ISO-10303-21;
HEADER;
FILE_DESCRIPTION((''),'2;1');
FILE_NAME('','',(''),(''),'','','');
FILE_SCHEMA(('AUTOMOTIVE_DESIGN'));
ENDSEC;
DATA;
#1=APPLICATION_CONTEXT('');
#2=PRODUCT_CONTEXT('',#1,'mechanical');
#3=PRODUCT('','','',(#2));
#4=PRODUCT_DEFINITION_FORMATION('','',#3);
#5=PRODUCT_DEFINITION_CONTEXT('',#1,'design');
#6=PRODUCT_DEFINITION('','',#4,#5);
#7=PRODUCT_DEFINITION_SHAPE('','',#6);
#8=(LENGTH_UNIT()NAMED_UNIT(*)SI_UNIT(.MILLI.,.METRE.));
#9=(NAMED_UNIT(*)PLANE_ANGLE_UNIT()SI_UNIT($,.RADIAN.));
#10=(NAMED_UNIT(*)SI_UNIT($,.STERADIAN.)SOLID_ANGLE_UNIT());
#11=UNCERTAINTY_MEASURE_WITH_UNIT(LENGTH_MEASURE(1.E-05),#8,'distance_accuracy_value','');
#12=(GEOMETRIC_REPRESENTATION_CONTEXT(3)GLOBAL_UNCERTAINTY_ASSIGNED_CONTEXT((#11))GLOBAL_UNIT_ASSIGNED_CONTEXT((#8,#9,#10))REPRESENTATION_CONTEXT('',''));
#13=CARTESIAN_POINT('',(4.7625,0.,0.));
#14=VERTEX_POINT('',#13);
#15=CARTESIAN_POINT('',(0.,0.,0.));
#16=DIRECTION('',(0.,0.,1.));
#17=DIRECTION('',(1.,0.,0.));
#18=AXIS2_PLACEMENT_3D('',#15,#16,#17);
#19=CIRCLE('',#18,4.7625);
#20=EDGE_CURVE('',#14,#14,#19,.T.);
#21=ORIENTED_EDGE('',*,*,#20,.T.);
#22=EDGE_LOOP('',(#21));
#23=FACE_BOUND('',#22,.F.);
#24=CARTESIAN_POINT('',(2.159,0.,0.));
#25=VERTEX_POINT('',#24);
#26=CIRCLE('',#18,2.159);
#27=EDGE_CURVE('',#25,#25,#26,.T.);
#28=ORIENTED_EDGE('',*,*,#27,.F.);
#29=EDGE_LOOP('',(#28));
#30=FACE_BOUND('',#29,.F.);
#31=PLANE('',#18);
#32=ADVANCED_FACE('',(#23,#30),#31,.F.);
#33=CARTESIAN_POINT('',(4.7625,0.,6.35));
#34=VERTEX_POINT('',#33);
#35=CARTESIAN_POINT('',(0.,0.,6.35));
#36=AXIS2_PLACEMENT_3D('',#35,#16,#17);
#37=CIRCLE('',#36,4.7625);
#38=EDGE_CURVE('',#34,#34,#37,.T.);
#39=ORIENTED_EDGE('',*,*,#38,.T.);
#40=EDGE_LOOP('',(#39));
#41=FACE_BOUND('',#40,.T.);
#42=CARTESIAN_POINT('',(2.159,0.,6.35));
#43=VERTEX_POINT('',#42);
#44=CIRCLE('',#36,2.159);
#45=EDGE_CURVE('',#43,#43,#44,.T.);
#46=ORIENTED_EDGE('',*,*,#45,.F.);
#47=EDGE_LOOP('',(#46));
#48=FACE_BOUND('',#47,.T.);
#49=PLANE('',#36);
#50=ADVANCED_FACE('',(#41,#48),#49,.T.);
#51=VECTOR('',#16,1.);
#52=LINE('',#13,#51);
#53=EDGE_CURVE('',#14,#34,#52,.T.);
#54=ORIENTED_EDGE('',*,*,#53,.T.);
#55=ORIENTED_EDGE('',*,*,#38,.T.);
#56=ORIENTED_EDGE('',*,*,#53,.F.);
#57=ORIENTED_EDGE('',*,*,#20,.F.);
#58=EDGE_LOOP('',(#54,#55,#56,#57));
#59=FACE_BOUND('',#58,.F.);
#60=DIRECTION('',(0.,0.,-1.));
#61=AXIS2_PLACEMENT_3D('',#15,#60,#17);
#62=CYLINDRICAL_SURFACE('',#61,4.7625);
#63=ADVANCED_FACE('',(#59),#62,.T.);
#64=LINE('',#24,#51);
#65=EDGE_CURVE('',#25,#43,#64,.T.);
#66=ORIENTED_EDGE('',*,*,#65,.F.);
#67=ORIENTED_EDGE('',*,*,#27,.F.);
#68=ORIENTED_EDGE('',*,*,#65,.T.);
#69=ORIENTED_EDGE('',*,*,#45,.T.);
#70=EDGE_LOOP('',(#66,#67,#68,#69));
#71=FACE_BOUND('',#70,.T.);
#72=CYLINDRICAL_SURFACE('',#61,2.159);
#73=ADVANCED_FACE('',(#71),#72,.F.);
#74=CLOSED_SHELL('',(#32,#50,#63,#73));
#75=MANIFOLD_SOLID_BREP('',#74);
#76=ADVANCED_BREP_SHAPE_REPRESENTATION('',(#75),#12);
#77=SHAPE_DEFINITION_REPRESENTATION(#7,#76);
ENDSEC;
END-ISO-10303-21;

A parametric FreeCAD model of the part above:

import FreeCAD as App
import Part
import Sketcher

V = App.Vector
Q = App.Units.Quantity

doc = App.newDocument("Part")
body = doc.addObject("PartDesign::Body", "Body")

sketch1 = body.newObject("Sketcher::SketchObject", "Sketch")
sketch1.AttachmentSupport = (doc.getObject("XY_Plane"), [""])
sketch1.MapMode = "FlatFace"
sketch1.addGeometry(Part.Circle(V(0, 0, 0), V(0, 0, 1), 4.8), False)
sketch1.addGeometry(Part.Circle(V(0, 0, 0), V(0, 0, 1), 2.2), False)
sketch1.addConstraint(Sketcher.Constraint("Coincident", 0, 3, -1, 1))
sketch1.addConstraint(Sketcher.Constraint("Coincident", 1, 3, -1, 1))
sketch1.addConstraint(Sketcher.Constraint("Diameter", 1, Q("0.17 in")))
sketch1.addConstraint(Sketcher.Constraint("Diameter", 0, Q("0.375 in")))
pad1 = body.newObject("PartDesign::Pad", "Pad")
pad1.Profile = sketch1
pad1.Length = Q("0.25 in")

doc.recompute()
